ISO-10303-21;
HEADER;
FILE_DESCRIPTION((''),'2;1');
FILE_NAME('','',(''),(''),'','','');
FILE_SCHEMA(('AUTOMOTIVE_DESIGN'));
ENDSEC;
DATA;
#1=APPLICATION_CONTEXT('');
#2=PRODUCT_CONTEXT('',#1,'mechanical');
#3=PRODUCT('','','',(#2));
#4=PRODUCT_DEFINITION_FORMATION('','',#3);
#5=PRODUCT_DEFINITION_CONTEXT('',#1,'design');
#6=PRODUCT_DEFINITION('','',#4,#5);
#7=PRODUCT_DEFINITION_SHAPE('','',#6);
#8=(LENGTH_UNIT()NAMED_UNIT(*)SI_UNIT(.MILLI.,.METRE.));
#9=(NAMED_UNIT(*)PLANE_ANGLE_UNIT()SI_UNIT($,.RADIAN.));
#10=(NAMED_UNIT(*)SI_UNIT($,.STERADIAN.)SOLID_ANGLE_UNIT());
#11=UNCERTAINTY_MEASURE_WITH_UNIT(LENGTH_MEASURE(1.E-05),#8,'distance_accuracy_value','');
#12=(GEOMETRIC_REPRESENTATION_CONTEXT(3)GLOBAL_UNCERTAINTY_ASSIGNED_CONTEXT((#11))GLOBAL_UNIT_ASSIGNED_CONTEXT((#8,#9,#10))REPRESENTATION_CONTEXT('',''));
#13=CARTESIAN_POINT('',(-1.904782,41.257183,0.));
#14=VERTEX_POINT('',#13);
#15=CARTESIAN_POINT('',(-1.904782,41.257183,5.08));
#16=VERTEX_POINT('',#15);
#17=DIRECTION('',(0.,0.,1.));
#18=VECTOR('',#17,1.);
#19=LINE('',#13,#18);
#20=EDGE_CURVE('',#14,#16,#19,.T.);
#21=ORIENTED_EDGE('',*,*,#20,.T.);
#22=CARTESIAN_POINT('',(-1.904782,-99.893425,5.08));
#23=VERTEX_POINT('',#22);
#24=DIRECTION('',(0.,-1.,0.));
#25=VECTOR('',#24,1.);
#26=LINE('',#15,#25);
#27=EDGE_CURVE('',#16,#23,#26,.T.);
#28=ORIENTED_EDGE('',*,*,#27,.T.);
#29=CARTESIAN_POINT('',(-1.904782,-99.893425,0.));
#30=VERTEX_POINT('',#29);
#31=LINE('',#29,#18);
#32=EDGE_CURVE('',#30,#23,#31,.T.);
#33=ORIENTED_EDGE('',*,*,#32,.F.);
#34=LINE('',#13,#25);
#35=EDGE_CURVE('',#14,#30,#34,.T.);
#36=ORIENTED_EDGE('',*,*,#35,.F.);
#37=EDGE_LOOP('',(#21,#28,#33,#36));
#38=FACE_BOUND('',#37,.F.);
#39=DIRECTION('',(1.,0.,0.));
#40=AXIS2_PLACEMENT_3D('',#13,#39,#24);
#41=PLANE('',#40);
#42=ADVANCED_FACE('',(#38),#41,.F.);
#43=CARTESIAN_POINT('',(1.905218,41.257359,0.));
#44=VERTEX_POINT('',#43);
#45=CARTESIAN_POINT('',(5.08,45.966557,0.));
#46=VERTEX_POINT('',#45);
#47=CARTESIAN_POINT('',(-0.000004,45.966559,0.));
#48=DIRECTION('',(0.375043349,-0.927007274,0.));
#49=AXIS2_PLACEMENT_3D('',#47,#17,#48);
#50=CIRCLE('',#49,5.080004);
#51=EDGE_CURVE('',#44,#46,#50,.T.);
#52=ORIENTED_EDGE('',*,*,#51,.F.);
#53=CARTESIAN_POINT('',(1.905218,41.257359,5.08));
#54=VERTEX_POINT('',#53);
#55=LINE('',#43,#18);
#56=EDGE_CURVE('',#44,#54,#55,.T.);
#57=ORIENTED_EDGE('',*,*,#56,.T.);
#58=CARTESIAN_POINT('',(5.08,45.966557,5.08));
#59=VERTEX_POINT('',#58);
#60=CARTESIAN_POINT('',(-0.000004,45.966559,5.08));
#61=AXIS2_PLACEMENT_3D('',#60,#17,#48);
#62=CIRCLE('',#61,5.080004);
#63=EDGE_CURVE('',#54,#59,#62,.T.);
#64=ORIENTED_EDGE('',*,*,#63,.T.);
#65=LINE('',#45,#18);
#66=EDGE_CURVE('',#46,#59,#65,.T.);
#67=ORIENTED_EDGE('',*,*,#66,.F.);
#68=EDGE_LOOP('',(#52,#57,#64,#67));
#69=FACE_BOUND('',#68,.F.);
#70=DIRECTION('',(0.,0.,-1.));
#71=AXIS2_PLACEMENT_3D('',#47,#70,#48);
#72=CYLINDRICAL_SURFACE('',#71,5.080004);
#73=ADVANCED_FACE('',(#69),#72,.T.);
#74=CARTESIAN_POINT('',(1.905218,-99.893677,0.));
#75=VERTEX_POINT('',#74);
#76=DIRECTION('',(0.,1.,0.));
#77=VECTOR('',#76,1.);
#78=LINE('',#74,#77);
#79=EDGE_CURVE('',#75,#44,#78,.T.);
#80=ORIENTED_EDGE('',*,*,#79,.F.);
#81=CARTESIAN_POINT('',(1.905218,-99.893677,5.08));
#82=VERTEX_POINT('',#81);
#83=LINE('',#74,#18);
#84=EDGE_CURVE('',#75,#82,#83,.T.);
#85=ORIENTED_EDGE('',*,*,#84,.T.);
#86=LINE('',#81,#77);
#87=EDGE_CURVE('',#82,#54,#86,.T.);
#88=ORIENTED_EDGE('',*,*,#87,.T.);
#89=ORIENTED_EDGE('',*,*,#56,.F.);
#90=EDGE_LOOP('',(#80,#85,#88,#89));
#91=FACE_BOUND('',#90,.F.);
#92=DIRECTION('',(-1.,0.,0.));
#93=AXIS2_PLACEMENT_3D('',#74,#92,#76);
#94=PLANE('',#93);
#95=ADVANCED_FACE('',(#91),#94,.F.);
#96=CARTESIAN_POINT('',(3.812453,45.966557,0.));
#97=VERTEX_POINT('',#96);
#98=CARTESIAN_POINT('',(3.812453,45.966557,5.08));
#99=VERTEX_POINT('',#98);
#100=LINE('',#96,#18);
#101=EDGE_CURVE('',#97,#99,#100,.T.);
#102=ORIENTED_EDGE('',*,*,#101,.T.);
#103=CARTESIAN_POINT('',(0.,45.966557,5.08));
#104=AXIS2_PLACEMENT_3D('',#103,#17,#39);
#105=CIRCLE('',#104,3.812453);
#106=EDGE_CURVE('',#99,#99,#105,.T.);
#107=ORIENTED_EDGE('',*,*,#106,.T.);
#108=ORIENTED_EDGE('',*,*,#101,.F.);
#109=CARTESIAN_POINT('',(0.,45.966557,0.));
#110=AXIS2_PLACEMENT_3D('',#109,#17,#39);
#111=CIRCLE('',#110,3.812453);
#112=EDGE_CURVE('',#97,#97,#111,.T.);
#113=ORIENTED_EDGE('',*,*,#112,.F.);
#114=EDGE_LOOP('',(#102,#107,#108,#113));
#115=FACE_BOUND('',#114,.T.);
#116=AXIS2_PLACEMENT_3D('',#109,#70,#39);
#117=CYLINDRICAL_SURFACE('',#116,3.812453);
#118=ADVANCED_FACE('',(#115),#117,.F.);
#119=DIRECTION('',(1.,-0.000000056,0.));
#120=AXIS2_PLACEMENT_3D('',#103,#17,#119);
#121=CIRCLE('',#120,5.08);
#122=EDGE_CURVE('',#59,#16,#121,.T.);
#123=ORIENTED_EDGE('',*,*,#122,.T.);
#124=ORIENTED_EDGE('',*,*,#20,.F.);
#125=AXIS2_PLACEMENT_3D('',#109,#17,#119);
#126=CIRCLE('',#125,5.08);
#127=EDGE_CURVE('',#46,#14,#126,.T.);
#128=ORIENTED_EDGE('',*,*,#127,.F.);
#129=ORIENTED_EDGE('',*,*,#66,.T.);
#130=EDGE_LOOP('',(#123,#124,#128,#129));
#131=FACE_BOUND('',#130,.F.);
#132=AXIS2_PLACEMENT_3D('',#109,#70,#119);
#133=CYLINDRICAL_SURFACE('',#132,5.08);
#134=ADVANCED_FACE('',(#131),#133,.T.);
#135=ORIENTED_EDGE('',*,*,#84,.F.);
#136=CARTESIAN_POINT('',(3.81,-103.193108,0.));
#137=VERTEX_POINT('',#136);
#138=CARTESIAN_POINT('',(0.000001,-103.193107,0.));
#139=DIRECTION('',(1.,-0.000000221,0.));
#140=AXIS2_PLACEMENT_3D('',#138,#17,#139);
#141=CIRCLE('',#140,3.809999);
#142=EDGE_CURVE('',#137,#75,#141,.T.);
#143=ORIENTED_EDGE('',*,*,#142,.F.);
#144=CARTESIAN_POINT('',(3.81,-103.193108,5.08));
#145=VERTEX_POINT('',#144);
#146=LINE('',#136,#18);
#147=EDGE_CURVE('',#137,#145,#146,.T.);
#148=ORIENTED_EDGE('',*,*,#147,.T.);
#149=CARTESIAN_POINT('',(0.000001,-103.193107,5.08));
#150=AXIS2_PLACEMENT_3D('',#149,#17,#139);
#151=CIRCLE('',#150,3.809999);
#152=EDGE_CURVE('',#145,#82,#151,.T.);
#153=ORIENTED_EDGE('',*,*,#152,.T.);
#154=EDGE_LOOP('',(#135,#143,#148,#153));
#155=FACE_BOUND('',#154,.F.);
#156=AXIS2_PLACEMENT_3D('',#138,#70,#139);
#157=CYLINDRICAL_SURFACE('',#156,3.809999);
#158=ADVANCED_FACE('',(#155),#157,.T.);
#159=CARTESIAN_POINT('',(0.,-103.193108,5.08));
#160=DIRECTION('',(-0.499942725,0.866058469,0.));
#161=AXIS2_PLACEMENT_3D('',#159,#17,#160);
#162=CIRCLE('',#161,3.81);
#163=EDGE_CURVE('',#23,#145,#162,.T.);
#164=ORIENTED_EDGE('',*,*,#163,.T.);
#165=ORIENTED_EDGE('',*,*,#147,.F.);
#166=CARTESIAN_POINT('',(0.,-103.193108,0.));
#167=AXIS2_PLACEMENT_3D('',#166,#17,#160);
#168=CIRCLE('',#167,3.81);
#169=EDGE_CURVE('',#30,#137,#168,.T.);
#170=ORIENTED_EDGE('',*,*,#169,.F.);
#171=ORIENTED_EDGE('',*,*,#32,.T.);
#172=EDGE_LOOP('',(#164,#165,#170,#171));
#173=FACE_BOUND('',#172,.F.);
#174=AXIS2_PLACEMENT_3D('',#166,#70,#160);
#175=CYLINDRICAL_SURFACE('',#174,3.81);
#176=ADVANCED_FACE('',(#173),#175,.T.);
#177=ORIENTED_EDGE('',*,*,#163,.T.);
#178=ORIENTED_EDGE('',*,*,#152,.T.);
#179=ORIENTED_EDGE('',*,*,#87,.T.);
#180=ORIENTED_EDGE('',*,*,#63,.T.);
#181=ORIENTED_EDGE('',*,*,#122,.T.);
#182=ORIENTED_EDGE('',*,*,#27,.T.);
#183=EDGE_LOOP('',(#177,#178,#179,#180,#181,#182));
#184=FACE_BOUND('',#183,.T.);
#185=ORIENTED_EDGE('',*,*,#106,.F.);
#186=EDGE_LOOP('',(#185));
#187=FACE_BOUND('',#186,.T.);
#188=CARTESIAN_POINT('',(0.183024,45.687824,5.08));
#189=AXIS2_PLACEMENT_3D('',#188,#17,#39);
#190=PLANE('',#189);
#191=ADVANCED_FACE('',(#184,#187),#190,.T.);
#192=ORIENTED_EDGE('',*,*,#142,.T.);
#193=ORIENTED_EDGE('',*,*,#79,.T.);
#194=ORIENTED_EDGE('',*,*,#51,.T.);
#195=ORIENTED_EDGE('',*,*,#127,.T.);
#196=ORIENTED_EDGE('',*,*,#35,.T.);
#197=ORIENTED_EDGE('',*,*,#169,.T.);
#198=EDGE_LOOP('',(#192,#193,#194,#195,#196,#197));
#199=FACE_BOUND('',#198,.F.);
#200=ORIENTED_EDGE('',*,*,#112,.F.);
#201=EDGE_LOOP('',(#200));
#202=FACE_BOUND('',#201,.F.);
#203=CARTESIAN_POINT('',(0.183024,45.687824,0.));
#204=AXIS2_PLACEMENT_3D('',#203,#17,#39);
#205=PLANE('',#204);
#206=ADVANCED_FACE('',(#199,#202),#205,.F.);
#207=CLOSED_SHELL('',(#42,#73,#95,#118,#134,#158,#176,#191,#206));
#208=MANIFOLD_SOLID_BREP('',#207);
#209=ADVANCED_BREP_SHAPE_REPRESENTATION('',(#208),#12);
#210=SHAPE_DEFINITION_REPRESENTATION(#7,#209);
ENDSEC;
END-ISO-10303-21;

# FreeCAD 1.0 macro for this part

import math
import FreeCAD as App
import Part
import Sketcher

V = App.Vector
Q = App.Units.Quantity

doc = App.newDocument("Part")
body = doc.addObject("PartDesign::Body", "Body")

# Sketch on XY plane
sketch1 = body.newObject("Sketcher::SketchObject", "Sketch")
sketch1.AttachmentSupport = (doc.getObject("XY_Plane"), [""])
sketch1.MapMode = "FlatFace"
sketch1.addGeometry([
    Part.ArcOfCircle(Part.Circle(V(-0.000004, 45.966559, 0), V(0, 0, 1), 5.080004), math.radians(-67.973008), math.radians(-0.000025)),  # 0
    Part.ArcOfCircle(Part.Circle(V(0, 45.966557, 0), V(0, 0, 1), 5.08), math.radians(-0.000003), math.radians(247.97834)),  # 1
    Part.LineSegment(V(-1.904782, 41.257183, 0), V(-1.904782, -99.893425, 0)),  # 2
    Part.ArcOfCircle(Part.Circle(V(0, -103.193108, 0), V(0, 0, 1), 3.81), math.radians(119.996211), math.radians(359.999998)),  # 3
    Part.ArcOfCircle(Part.Circle(V(0.000001, -103.193107, 0), V(0, 0, 1), 3.809999), math.radians(-0.000013), math.radians(59.996226)),  # 4
    Part.LineSegment(V(1.905218, -99.893677, 0), V(1.905218, 41.257359, 0)),  # 5
    Part.Circle(V(0, 45.966557, 0), V(0, 0, 1), 3.812453),  # 6
], False)
sketch1.addConstraint([
    Sketcher.Constraint("Tangent", 0, 2, 1, 1),
    Sketcher.Constraint("Coincident", 1, 2, 2, 1),
    Sketcher.Constraint("Coincident", 2, 2, 3, 1),
    Sketcher.Constraint("Tangent", 3, 2, 4, 1),
    Sketcher.Constraint("Coincident", 4, 2, 5, 1),
    Sketcher.Constraint("Coincident", 5, 2, 0, 1),
    Sketcher.Constraint("Vertical", 2),
    Sketcher.Constraint("Vertical", 5),
    Sketcher.Constraint("Coincident", 6, 3, 0, 3),
    Sketcher.Constraint("Equal", 3, 4),
    Sketcher.Constraint("PointOnObject", 1, 3, -2),
    Sketcher.Constraint("PointOnObject", 3, 3, -2),
    Sketcher.Constraint("PointOnObject", 6, 3, -2),
    Sketcher.Constraint("Horizontal", 6, 3, 0, 2),
    Sketcher.Constraint("Horizontal", 4, 3, 3, 2),
    Sketcher.Constraint("Radius", 0, Q("0.2000001 in")),
    Sketcher.Constraint("Radius", 3, Q("0.15 in")),
    Sketcher.Constraint("DistanceX", 2, 2, 4, 2, Q("0.15 in")),
    Sketcher.Constraint("Diameter", 6, Q("7.624906 mm")),
    Sketcher.Constraint("DistanceY", 5, 2, 6, 3, Q("4.709198 mm")),
    Sketcher.Constraint("DistanceY", 2, 2, 2, 1, Q("141.150608 mm")),
    Sketcher.Constraint("DistanceY", -1, 1, 0, 3, Q("45.966559 mm")),
])
pad1 = body.newObject("PartDesign::Pad", "Pad")
pad1.Profile = sketch1
pad1.Length = Q("0.2 in")

doc.recompute()
